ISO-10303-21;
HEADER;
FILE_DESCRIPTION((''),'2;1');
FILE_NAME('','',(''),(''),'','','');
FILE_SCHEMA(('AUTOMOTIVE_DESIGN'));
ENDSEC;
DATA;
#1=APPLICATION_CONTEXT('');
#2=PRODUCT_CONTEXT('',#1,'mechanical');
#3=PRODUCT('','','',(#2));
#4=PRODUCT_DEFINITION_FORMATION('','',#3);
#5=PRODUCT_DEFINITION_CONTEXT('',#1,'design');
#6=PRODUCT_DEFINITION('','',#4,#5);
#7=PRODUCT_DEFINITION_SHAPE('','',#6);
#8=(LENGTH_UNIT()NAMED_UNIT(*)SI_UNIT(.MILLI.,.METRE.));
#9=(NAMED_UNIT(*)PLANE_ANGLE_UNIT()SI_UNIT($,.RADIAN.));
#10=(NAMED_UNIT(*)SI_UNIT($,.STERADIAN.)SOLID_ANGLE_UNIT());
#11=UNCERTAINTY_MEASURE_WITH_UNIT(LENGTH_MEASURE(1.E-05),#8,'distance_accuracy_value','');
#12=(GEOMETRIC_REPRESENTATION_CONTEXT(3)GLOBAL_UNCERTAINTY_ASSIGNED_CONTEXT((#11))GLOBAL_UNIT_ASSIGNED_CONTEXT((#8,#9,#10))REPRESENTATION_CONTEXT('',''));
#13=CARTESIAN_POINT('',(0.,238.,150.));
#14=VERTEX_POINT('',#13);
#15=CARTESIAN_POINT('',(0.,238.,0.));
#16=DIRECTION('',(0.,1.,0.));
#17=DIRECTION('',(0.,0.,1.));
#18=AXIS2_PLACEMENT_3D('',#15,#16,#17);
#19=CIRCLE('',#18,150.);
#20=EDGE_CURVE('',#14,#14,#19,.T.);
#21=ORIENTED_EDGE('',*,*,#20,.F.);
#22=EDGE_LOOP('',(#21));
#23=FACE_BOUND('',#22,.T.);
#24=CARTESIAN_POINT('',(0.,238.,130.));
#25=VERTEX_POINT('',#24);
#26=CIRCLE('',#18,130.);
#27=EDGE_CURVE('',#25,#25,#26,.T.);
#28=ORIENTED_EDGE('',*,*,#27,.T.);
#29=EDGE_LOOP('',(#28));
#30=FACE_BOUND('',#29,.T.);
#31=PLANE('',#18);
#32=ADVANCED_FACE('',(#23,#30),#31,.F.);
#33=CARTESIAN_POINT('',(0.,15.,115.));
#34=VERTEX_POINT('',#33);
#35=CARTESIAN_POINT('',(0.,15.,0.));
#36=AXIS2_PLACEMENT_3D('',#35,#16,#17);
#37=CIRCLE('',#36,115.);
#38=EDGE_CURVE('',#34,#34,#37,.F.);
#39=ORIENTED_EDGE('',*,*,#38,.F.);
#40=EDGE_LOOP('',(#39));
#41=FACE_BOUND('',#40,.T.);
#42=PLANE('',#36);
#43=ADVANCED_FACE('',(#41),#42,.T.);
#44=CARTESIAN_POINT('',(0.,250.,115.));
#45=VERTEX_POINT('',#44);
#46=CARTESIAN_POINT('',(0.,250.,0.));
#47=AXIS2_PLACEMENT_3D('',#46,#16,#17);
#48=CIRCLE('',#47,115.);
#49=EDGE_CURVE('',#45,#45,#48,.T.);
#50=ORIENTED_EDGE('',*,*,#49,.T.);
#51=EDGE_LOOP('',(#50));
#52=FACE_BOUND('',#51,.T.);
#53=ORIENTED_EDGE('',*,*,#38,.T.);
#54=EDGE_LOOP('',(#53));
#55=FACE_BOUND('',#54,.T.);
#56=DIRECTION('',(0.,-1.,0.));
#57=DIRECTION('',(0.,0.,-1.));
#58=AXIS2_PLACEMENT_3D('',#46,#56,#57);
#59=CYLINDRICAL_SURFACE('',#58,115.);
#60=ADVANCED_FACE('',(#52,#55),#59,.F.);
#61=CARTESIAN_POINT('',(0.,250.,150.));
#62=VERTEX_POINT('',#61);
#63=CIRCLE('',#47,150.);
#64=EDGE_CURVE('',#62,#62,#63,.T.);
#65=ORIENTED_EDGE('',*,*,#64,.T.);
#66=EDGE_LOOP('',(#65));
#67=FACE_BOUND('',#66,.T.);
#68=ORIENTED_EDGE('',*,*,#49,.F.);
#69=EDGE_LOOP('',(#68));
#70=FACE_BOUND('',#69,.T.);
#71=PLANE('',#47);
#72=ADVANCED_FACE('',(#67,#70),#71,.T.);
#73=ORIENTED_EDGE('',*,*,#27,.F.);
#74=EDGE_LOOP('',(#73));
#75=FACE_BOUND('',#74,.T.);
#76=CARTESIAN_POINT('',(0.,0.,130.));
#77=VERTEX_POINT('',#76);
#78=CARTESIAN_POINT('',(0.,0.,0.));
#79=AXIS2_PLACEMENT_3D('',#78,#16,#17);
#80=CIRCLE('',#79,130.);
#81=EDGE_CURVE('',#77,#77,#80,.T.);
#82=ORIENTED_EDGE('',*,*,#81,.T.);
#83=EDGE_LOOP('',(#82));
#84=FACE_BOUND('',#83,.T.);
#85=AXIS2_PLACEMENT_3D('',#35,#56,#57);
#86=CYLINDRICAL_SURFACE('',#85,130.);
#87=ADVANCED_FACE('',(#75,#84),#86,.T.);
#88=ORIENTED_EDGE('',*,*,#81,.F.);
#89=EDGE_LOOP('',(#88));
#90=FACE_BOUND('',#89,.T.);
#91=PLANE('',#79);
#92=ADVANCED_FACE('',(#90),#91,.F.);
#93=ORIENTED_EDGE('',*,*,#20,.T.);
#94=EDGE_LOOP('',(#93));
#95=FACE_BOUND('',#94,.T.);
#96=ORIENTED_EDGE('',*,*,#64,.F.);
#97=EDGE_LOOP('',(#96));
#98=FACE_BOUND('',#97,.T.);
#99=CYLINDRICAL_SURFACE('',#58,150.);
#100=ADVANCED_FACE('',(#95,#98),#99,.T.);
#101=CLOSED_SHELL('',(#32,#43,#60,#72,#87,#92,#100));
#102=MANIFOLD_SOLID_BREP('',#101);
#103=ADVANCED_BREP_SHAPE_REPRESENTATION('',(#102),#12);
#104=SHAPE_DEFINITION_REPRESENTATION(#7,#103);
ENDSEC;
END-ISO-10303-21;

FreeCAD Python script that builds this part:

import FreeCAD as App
import Part
import Sketcher

V = App.Vector
Q = App.Units.Quantity

doc = App.newDocument("Part")
body = doc.addObject("PartDesign::Body", "Body")

# Sketch on XZ plane
sketch1 = doc.addObject("Sketcher::SketchObject", "Sketch")
body.addObject(sketch1)
sketch1.AttachmentSupport = (doc.XZ_Plane, [""])
sketch1.MapMode = "FlatFace"
sketch1.addGeometry(Part.Circle(V(0, 0, 0), V(0, 0, 1), 130), False)
sketch1.addConstraint(Sketcher.Constraint("Coincident", 0, 3, -1, 1))
sketch1.addConstraint(Sketcher.Constraint("Diameter", 0, Q("260 mm")))
pad1 = doc.addObject("PartDesign::Pad", "Pad")
body.addObject(pad1)
pad1.Profile = sketch1
pad1.Length = 15
pad1.Reversed = True

# Sketch on XZ plane
sketch2 = doc.addObject("Sketcher::SketchObject", "Sketch001")
body.addObject(sketch2)
sketch2.AttachmentSupport = (doc.XZ_Plane, [""])
sketch2.MapMode = "FlatFace"
sketch2.addGeometry(Part.Circle(V(0, 0, 0), V(0, 0, 1), 130), False)
sketch2.addGeometry(Part.Circle(V(0, 0, 0), V(0, 0, 1), 115), False)
sketch2.addConstraint(Sketcher.Constraint("Coincident", 0, 3, -1, 1))
sketch2.addConstraint(Sketcher.Constraint("Coincident", 1, 3, -1, 1))
sketch2.addConstraint(Sketcher.Constraint("Diameter", 0, Q("260 mm")))
sketch2.addConstraint(Sketcher.Constraint("Diameter", 1, Q("230 mm")))
pad2 = doc.addObject("PartDesign::Pad", "Pad001")
body.addObject(pad2)
pad2.Profile = sketch2
pad2.Length = 250
pad2.Reversed = True

# Sketch on XZ plane
sketch3 = doc.addObject("Sketcher::SketchObject", "Sketch002")
body.addObject(sketch3)
sketch3.AttachmentSupport = (doc.XZ_Plane, [""])
sketch3.MapMode = "FlatFace"
sketch3.AttachmentOffset = App.Placement(V(0, 0, -238), App.Rotation())
sketch3.addGeometry(Part.Circle(V(0, 0, 0), V(0, 0, 1), 150), False)
sketch3.addGeometry(Part.Circle(V(0, 0, 0), V(0, 0, 1), 115), False)
sketch3.addConstraint(Sketcher.Constraint("Coincident", 0, 3, -1, 1))
sketch3.addConstraint(Sketcher.Constraint("Coincident", 1, 3, -1, 1))
sketch3.addConstraint(Sketcher.Constraint("Diameter", 0, Q("300 mm")))
sketch3.addConstraint(Sketcher.Constraint("Diameter", 1, Q("230 mm")))
pad3 = doc.addObject("PartDesign::Pad", "Pad002")
body.addObject(pad3)
pad3.Profile = sketch3
pad3.Length = 12
pad3.Reversed = True

doc.recompute()
